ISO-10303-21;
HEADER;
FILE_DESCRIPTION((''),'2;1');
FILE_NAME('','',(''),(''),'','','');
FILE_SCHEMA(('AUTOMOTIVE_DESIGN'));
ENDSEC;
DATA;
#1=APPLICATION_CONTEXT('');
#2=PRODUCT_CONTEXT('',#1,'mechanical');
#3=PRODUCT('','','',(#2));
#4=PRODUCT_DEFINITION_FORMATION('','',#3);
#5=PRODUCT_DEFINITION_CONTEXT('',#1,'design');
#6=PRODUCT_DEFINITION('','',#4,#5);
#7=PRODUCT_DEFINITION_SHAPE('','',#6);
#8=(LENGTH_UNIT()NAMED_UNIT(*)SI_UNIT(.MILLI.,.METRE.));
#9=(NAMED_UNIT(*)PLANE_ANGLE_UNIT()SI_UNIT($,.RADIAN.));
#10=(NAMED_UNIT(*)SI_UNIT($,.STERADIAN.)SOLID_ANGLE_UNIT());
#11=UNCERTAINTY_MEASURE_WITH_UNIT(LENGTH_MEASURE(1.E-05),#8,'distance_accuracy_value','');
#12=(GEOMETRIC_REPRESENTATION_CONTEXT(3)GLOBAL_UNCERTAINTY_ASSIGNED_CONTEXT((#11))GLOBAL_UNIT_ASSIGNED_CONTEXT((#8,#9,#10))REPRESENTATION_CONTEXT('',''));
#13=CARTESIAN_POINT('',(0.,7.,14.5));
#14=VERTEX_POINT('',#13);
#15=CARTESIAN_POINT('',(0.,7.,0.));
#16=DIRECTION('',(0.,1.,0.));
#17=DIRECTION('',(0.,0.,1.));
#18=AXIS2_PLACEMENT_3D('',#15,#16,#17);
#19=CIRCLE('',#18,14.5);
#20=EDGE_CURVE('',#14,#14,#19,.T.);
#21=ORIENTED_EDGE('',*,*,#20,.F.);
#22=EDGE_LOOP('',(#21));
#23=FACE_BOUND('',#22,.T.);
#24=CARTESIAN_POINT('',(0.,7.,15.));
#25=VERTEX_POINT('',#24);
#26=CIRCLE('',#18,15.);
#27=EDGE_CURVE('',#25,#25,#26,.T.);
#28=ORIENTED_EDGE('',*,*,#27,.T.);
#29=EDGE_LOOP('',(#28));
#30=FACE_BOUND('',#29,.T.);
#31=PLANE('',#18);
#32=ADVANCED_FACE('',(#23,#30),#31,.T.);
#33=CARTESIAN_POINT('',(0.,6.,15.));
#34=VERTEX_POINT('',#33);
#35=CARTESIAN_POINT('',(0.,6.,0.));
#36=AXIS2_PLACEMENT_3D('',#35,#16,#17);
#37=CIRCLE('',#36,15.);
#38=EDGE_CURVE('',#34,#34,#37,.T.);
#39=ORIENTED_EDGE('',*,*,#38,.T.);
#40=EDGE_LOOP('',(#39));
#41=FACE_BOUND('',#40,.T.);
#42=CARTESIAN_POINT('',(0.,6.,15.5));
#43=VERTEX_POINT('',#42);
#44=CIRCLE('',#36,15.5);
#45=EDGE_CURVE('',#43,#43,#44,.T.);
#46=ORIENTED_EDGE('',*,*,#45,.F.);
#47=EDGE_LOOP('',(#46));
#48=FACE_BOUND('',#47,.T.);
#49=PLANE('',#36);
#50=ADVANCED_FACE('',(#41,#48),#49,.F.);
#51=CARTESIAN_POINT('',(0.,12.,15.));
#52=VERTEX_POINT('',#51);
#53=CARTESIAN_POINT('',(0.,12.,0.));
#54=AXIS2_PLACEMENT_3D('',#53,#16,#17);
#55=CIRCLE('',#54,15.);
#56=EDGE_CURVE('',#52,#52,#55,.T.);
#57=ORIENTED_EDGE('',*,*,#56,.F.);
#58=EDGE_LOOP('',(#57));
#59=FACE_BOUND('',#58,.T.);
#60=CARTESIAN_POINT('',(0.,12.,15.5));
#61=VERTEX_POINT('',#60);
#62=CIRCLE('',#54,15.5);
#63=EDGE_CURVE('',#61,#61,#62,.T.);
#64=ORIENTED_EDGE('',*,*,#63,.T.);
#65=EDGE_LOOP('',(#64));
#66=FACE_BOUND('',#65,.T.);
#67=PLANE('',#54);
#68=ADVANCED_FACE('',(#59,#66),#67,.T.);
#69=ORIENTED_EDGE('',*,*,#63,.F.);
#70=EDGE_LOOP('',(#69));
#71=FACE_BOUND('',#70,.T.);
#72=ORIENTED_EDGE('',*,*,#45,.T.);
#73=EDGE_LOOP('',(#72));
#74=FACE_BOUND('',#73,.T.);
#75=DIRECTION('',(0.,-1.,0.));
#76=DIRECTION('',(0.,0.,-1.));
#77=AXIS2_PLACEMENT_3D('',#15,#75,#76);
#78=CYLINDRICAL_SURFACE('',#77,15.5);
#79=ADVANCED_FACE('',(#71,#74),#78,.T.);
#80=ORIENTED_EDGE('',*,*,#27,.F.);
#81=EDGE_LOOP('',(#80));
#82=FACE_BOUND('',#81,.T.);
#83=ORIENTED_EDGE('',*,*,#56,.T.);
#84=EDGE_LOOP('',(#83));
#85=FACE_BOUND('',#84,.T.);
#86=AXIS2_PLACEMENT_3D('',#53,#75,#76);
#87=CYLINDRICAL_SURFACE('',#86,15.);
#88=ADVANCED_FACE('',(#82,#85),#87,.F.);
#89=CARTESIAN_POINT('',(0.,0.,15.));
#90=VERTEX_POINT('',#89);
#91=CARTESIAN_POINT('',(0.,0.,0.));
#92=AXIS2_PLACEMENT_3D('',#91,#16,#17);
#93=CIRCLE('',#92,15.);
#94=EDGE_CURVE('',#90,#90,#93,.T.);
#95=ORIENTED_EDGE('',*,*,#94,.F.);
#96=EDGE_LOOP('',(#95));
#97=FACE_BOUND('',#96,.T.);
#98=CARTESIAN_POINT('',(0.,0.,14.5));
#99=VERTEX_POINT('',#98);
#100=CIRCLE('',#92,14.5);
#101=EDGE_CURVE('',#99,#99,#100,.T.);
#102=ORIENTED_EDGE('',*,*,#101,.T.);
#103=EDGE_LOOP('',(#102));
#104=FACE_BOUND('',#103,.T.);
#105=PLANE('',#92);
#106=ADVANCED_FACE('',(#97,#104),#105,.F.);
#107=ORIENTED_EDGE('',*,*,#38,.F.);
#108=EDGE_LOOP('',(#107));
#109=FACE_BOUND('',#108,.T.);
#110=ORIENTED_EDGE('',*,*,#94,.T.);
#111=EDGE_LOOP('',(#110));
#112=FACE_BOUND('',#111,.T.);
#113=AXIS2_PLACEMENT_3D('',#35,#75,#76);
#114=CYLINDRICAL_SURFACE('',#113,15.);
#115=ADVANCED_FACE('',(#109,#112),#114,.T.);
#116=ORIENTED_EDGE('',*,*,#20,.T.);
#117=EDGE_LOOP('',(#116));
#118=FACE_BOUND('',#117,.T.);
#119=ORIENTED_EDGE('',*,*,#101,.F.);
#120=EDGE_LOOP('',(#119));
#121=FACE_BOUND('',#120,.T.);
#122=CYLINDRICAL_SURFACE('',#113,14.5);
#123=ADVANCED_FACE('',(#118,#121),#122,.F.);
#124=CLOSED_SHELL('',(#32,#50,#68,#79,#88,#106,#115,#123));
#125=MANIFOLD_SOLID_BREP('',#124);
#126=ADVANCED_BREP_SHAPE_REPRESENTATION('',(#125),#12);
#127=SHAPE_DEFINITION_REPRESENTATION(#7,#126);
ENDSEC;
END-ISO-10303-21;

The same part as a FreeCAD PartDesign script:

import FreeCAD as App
import Part
import Sketcher

V = App.Vector
Q = App.Units.Quantity

doc = App.newDocument("Part")
params = doc.addObject("Spreadsheet::Sheet", "Params")
for row, (alias, value) in enumerate([
    ("sketch1_diameter", "30 mm"),
    ("sketch1_diameter2", "29 mm"),
    ("pad1_length", "6 mm"),
    ("sketch2_diameter", "31 mm"),
    ("sketch2_diameter2", "29 mm"),
    ("pad2_length", "1 mm"),
    ("sketch3_diameter", "31 mm"),
    ("sketch3_diameter2", "30 mm"),
    ("pad3_length", "5 mm"),
], start=1):
    params.set(f"A{row}", alias)
    params.set(f"B{row}", "=" + value)
    params.setAlias(f"B{row}", alias)

body = doc.addObject("PartDesign::Body", "Body")

# Sketch on XZ plane
sketch1 = body.newObject("Sketcher::SketchObject", "Sketch")
sketch1.AttachmentSupport = (doc.getObject("XZ_Plane"), [""])
sketch1.MapMode = "FlatFace"
sketch1.addGeometry(Part.Circle(V(0, 0, 0), V(0, 0, 1), 15), False)
sketch1.addGeometry(Part.Circle(V(0, 0, 0), V(0, 0, 1), 14), False)
sketch1.addConstraint(Sketcher.Constraint("Coincident", 0, 3, -1, 1))
sketch1.addConstraint(Sketcher.Constraint("Coincident", 1, 3, -1, 1))
sketch1.addConstraint(Sketcher.Constraint("Diameter", 0, Q("30 mm")))
sketch1.addConstraint(Sketcher.Constraint("Diameter", 1, Q("29 mm")))
sketch1.setExpression("Constraints[2]", "Params.sketch1_diameter")
sketch1.setExpression("Constraints[3]", "Params.sketch1_diameter2")
pad1 = body.newObject("PartDesign::Pad", "Pad")
pad1.Profile = sketch1
pad1.setExpression("Length", "Params.pad1_length")
pad1.Reversed = True

# Sketch on XZ plane
sketch2 = body.newObject("Sketcher::SketchObject", "Sketch001")
sketch2.AttachmentSupport = (doc.getObject("XZ_Plane"), [""])
sketch2.MapMode = "FlatFace"
sketch2.AttachmentOffset = App.Placement(V(0, 0, -6), App.Rotation())
sketch2.addGeometry(Part.Circle(V(0, 0, 0), V(0, 0, 1), 16), False)
sketch2.addGeometry(Part.Circle(V(0, 0, 0), V(0, 0, 1), 14), False)
sketch2.addConstraint(Sketcher.Constraint("Coincident", 0, 3, -1, 1))
sketch2.addConstraint(Sketcher.Constraint("Coincident", 1, 3, -1, 1))
sketch2.addConstraint(Sketcher.Constraint("Diameter", 0, Q("31 mm")))
sketch2.addConstraint(Sketcher.Constraint("Diameter", 1, Q("29 mm")))
sketch2.setExpression("Constraints[2]", "Params.sketch2_diameter")
sketch2.setExpression("Constraints[3]", "Params.sketch2_diameter2")
pad2 = body.newObject("PartDesign::Pad", "Pad001")
pad2.Profile = sketch2
pad2.setExpression("Length", "Params.pad2_length")
pad2.Reversed = True

# Sketch on XZ plane
sketch3 = body.newObject("Sketcher::SketchObject", "Sketch002")
sketch3.AttachmentSupport = (doc.getObject("XZ_Plane"), [""])
sketch3.MapMode = "FlatFace"
sketch3.AttachmentOffset = App.Placement(V(0, 0, -7), App.Rotation())
sketch3.addGeometry(Part.Circle(V(0, 0, 0), V(0, 0, 1), 16), False)
sketch3.addGeometry(Part.Circle(V(0, 0, 0), V(0, 0, 1), 15), False)
sketch3.addConstraint(Sketcher.Constraint("Coincident", 0, 3, -1, 1))
sketch3.addConstraint(Sketcher.Constraint("Coincident", 1, 3, -1, 1))
sketch3.addConstraint(Sketcher.Constraint("Diameter", 0, Q("31 mm")))
sketch3.addConstraint(Sketcher.Constraint("Diameter", 1, Q("30 mm")))
sketch3.setExpression("Constraints[2]", "Params.sketch3_diameter")
sketch3.setExpression("Constraints[3]", "Params.sketch3_diameter2")
pad3 = body.newObject("PartDesign::Pad", "Pad002")
pad3.Profile = sketch3
pad3.setExpression("Length", "Params.pad3_length")
pad3.Reversed = True

doc.recompute()
